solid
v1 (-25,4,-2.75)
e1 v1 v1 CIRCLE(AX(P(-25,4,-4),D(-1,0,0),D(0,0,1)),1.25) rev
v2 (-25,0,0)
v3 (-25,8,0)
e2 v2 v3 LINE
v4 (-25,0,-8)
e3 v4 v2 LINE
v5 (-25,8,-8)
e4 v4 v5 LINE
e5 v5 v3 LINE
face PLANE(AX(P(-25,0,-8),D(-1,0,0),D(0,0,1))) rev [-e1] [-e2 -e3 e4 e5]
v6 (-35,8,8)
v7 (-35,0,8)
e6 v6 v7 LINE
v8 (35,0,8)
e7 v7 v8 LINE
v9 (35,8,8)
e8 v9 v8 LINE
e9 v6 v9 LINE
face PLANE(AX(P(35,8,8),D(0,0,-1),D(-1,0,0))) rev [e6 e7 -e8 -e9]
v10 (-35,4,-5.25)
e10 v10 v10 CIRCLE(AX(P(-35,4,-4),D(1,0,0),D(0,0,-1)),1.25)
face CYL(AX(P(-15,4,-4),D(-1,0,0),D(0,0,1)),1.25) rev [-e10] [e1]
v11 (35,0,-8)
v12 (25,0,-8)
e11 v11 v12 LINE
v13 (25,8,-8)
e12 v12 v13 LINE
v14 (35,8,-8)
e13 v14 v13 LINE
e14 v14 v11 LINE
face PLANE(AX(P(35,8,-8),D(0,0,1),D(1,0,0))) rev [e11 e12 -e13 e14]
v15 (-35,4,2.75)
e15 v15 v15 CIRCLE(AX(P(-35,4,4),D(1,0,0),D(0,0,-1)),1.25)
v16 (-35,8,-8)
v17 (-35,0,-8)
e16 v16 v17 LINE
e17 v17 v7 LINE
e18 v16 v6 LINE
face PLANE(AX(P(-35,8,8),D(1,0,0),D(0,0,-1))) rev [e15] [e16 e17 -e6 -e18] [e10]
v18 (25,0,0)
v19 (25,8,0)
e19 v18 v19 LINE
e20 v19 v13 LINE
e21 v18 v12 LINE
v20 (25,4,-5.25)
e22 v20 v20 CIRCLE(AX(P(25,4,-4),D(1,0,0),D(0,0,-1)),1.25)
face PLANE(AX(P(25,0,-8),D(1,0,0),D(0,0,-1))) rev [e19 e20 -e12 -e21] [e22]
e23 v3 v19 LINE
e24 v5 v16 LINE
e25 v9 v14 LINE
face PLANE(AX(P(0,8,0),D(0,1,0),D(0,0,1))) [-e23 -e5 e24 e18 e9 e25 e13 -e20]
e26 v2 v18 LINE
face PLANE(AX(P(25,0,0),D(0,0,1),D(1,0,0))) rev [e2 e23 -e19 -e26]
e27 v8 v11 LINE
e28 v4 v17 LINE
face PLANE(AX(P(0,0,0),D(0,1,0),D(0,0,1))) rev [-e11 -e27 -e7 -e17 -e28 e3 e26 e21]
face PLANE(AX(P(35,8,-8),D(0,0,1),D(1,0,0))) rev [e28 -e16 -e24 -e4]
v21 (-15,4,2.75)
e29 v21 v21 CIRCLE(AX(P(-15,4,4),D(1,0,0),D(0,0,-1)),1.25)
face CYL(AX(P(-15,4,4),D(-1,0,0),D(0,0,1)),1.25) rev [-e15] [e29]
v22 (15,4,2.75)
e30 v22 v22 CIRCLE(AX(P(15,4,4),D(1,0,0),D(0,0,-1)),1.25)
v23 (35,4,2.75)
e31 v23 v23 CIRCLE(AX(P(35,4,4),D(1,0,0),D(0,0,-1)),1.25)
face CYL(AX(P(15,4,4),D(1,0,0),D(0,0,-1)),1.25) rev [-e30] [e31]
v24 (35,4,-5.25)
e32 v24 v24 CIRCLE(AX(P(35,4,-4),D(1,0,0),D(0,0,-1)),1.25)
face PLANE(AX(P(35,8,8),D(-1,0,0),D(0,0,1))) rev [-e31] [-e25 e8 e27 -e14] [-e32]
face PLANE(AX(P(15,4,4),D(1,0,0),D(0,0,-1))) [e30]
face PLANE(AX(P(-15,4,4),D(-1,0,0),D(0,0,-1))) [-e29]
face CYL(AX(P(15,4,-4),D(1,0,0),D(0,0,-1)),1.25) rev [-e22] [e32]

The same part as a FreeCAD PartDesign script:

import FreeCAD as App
import Part
import Sketcher

doc = App.newDocument("Part")
body = doc.addObject("PartDesign::Body", "Body")

# Sketch on XZ plane
sketch1 = body.newObject("Sketcher::SketchObject", "Sketch")
sketch1.AttachmentSupport = (doc.getObject("XZ_Plane"), [""])
sketch1.MapMode = "FlatFace"
sketch1.addGeometry(Part.LineSegment(App.Vector(-35, -8, 0), App.Vector(-35, 8, 0)), False)
sketch1.addGeometry(Part.LineSegment(App.Vector(-35, 8, 0), App.Vector(35, 8, 0)), False)
sketch1.addGeometry(Part.LineSegment(App.Vector(35, 8, 0), App.Vector(35, -8, 0)), False)
sketch1.addGeometry(Part.LineSegment(App.Vector(35, -8, 0), App.Vector(-35, -8, 0)), False)
sketch1.addConstraint(Sketcher.Constraint("Coincident", 0, 2, 1, 1))
sketch1.addConstraint(Sketcher.Constraint("Coincident", 1, 2, 2, 1))
sketch1.addConstraint(Sketcher.Constraint("Coincident", 2, 2, 3, 1))
sketch1.addConstraint(Sketcher.Constraint("Coincident", 3, 2, 0, 1))
sketch1.addConstraint(Sketcher.Constraint("Vertical", 0))
sketch1.addConstraint(Sketcher.Constraint("Horizontal", 1))
sketch1.addConstraint(Sketcher.Constraint("Vertical", 2))
sketch1.addConstraint(Sketcher.Constraint("Horizontal", 3))
sketch1.addConstraint(Sketcher.Constraint("Symmetric", 0, 2, 2, 2, -1, 1))
sketch1.addConstraint(Sketcher.Constraint("DistanceX", 1, 1, 1, 2, 70.0))
sketch1.addConstraint(Sketcher.Constraint("DistanceY", 0, 1, 0, 2, 16.0))
pad1 = body.newObject("PartDesign::Pad", "Pad")
pad1.Profile = sketch1
pad1.Length = 8
pad1.Reversed = True

# Sketch on XZ plane
sketch2 = body.newObject("Sketcher::SketchObject", "Sketch001")
sketch2.AttachmentSupport = (doc.getObject("XZ_Plane"), [""])
sketch2.MapMode = "FlatFace"
sketch2.AttachmentOffset = App.Placement(App.Vector(0, 0, -8), App.Rotation())
sketch2.addGeometry(Part.LineSegment(App.Vector(-25, -8, 0), App.Vector(-25, 0, 0)), False)
sketch2.addGeometry(Part.LineSegment(App.Vector(-25, 0, 0), App.Vector(25, 0, 0)), False)
sketch2.addGeometry(Part.LineSegment(App.Vector(25, 0, 0), App.Vector(25, -8, 0)), False)
sketch2.addGeometry(Part.LineSegment(App.Vector(25, -8, 0), App.Vector(-25, -8, 0)), False)
sketch2.addConstraint(Sketcher.Constraint("Coincident", 0, 2, 1, 1))
sketch2.addConstraint(Sketcher.Constraint("Coincident", 1, 2, 2, 1))
sketch2.addConstraint(Sketcher.Constraint("Coincident", 2, 2, 3, 1))
sketch2.addConstraint(Sketcher.Constraint("Coincident", 3, 2, 0, 1))
sketch2.addConstraint(Sketcher.Constraint("Vertical", 0))
sketch2.addConstraint(Sketcher.Constraint("Horizontal", 1))
sketch2.addConstraint(Sketcher.Constraint("Vertical", 2))
sketch2.addConstraint(Sketcher.Constraint("Horizontal", 3))
sketch2.addConstraint(Sketcher.Constraint("Symmetric", 0, 2, 1, 2, -1, 1))
sketch2.addConstraint(Sketcher.Constraint("DistanceX", 1, 1, 1, 2, 50.0))
sketch2.addConstraint(Sketcher.Constraint("DistanceY", 0, 1, 0, 2, 8.0))
pocket1 = body.newObject("PartDesign::Pocket", "Pocket")
pocket1.Profile = sketch2
pocket1.Type = "ThroughAll"
pocket1.Reversed = True

# Sketch on YZ plane
sketch3 = body.newObject("Sketcher::SketchObject", "Sketch002")
sketch3.AttachmentSupport = (doc.getObject("YZ_Plane"), [""])
sketch3.MapMode = "FlatFace"
sketch3.AttachmentOffset = App.Placement(App.Vector(0, 0, 35), App.Rotation())
sketch3.addGeometry(Part.Circle(App.Vector(4, 4, 0), App.Vector(0, 0, 1), 1.2), False)
sketch3.addGeometry(Part.Circle(App.Vector(4, -4, 0), App.Vector(0, 0, 1), 1.2), False)
sketch3.addConstraint(Sketcher.Constraint("Equal", 0, 1))
sketch3.addConstraint(Sketcher.Constraint("Symmetric", 0, 3, 1, 3, -1))
sketch3.addConstraint(Sketcher.Constraint("Diameter", 0, 2.5))
sketch3.addConstraint(Sketcher.Constraint("DistanceX", -1, 1, 0, 3, 4.0))
sketch3.addConstraint(Sketcher.Constraint("DistanceY", -1, 1, 0, 3, 4.0))
pocket2 = body.newObject("PartDesign::Pocket", "Pocket001")
pocket2.Profile = sketch3
pocket2.Length = 20
doc.recompute()

mirrored = body.newObject("PartDesign::Mirrored", "Mirrored")
mirrored.Originals = [pocket2]
mirrored.MirrorPlane = (doc.getObject("YZ_Plane"), [""])
body.Tip = mirrored

doc.recompute()
